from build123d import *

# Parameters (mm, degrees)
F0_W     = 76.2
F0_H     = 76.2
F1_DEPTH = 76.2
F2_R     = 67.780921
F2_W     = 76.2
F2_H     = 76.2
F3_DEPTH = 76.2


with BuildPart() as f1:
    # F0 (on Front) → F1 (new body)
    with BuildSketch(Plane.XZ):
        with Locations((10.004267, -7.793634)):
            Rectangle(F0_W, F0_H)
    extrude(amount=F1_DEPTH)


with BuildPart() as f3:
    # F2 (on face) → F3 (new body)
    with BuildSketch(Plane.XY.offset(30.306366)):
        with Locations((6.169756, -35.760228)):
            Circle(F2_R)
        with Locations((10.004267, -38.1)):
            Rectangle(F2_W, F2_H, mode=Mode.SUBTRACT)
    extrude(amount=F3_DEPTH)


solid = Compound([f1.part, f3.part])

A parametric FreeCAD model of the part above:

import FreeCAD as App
import Part
import Sketcher
Q = App.Units.Quantity


def add_polygon(sketch, points):
    """Adds a closed chain of lines whose ends are joined by coincident constraints."""
    first, n = sketch.GeometryCount, len(points)
    for a, b in zip(points, points[1:] + points[:1]):
        sketch.addGeometry(Part.LineSegment(App.Vector(*a, 0), App.Vector(*b, 0)), False)
    for i in range(n):
        sketch.addConstraint(Sketcher.Constraint("Coincident", first + i, 2, first + (i + 1) % n, 1))

doc = App.newDocument("Part")
body = doc.addObject("PartDesign::Body", "Body")

# Sketch on XZ plane
sketch1 = body.newObject("Sketcher::SketchObject", "Sketch")
sketch1.AttachmentSupport = (doc.getObject("XZ_Plane"), [""])
sketch1.MapMode = "FlatFace"
add_polygon(sketch1, [(-28, 30), (-28, -46), (48, -46), (48, 30)])  # lines 0-3
sketch1.addConstraint(Sketcher.Constraint("Vertical", 0))
sketch1.addConstraint(Sketcher.Constraint("Horizontal", 1))
sketch1.addConstraint(Sketcher.Constraint("Vertical", 2))
sketch1.addConstraint(Sketcher.Constraint("Horizontal", 3))
sketch1.addConstraint(Sketcher.Constraint("Equal", 3, 0))
sketch1.addConstraint(Sketcher.Constraint("DistanceX", 1, 1, 1, 2, Q("3 in")))
sketch1.addConstraint(Sketcher.Constraint("DistanceX", 0, 2, -1, 1, Q("28.095733 mm")))
sketch1.addConstraint(Sketcher.Constraint("DistanceY", 0, 2, -1, 1, Q("45.893634 mm")))
pad1 = body.newObject("PartDesign::Pad", "Pad")
pad1.Profile = sketch1
pad1.Length = Q("3 in")
body2 = doc.addObject("PartDesign::Body", "Body001")

# Sketch on XY plane
sketch2 = body2.newObject("Sketcher::SketchObject", "Sketch001")
sketch2.AttachmentSupport = (doc.getObject("XY_Plane001"), [""])
sketch2.MapMode = "FlatFace"
sketch2.AttachmentOffset = App.Placement(App.Vector(0, 0, 30.306366), App.Rotation())
sketch2.addGeometry(Part.Circle(App.Vector(6, -36, 0), App.Vector(0, 0, 1), 68), False)  # 0
add_polygon(sketch2, [(48, -76), (-28, -76), (-28, 0), (48, 0)])  # lines 1-4
sketch2.addConstraint(Sketcher.Constraint("Horizontal", 1))
sketch2.addConstraint(Sketcher.Constraint("Vertical", 2))
sketch2.addConstraint(Sketcher.Constraint("Horizontal", 3))
sketch2.addConstraint(Sketcher.Constraint("Vertical", 4))
sketch2.addConstraint(Sketcher.Constraint("PointOnObject", 2, 2, -1))
sketch2.addConstraint(Sketcher.Constraint("Equal", 3, 2))
sketch2.addConstraint(Sketcher.Constraint("DistanceX", 1, 2, 1, 1, Q("3 in")))
sketch2.addConstraint(Sketcher.Constraint("Diameter", 0, Q("135.561842 mm")))
sketch2.addConstraint(Sketcher.Constraint("DistanceX", 1, 2, 0, 3, Q("34.265489 mm")))
sketch2.addConstraint(Sketcher.Constraint("DistanceX", -1, 1, 0, 3, Q("6.169756 mm")))
sketch2.addConstraint(Sketcher.Constraint("DistanceY", 0, 3, -1, 1, Q("35.760228 mm")))
pad2 = body2.newObject("PartDesign::Pad", "Pad001")
pad2.Profile = sketch2
pad2.Length = Q("3 in")

doc.recompute()
